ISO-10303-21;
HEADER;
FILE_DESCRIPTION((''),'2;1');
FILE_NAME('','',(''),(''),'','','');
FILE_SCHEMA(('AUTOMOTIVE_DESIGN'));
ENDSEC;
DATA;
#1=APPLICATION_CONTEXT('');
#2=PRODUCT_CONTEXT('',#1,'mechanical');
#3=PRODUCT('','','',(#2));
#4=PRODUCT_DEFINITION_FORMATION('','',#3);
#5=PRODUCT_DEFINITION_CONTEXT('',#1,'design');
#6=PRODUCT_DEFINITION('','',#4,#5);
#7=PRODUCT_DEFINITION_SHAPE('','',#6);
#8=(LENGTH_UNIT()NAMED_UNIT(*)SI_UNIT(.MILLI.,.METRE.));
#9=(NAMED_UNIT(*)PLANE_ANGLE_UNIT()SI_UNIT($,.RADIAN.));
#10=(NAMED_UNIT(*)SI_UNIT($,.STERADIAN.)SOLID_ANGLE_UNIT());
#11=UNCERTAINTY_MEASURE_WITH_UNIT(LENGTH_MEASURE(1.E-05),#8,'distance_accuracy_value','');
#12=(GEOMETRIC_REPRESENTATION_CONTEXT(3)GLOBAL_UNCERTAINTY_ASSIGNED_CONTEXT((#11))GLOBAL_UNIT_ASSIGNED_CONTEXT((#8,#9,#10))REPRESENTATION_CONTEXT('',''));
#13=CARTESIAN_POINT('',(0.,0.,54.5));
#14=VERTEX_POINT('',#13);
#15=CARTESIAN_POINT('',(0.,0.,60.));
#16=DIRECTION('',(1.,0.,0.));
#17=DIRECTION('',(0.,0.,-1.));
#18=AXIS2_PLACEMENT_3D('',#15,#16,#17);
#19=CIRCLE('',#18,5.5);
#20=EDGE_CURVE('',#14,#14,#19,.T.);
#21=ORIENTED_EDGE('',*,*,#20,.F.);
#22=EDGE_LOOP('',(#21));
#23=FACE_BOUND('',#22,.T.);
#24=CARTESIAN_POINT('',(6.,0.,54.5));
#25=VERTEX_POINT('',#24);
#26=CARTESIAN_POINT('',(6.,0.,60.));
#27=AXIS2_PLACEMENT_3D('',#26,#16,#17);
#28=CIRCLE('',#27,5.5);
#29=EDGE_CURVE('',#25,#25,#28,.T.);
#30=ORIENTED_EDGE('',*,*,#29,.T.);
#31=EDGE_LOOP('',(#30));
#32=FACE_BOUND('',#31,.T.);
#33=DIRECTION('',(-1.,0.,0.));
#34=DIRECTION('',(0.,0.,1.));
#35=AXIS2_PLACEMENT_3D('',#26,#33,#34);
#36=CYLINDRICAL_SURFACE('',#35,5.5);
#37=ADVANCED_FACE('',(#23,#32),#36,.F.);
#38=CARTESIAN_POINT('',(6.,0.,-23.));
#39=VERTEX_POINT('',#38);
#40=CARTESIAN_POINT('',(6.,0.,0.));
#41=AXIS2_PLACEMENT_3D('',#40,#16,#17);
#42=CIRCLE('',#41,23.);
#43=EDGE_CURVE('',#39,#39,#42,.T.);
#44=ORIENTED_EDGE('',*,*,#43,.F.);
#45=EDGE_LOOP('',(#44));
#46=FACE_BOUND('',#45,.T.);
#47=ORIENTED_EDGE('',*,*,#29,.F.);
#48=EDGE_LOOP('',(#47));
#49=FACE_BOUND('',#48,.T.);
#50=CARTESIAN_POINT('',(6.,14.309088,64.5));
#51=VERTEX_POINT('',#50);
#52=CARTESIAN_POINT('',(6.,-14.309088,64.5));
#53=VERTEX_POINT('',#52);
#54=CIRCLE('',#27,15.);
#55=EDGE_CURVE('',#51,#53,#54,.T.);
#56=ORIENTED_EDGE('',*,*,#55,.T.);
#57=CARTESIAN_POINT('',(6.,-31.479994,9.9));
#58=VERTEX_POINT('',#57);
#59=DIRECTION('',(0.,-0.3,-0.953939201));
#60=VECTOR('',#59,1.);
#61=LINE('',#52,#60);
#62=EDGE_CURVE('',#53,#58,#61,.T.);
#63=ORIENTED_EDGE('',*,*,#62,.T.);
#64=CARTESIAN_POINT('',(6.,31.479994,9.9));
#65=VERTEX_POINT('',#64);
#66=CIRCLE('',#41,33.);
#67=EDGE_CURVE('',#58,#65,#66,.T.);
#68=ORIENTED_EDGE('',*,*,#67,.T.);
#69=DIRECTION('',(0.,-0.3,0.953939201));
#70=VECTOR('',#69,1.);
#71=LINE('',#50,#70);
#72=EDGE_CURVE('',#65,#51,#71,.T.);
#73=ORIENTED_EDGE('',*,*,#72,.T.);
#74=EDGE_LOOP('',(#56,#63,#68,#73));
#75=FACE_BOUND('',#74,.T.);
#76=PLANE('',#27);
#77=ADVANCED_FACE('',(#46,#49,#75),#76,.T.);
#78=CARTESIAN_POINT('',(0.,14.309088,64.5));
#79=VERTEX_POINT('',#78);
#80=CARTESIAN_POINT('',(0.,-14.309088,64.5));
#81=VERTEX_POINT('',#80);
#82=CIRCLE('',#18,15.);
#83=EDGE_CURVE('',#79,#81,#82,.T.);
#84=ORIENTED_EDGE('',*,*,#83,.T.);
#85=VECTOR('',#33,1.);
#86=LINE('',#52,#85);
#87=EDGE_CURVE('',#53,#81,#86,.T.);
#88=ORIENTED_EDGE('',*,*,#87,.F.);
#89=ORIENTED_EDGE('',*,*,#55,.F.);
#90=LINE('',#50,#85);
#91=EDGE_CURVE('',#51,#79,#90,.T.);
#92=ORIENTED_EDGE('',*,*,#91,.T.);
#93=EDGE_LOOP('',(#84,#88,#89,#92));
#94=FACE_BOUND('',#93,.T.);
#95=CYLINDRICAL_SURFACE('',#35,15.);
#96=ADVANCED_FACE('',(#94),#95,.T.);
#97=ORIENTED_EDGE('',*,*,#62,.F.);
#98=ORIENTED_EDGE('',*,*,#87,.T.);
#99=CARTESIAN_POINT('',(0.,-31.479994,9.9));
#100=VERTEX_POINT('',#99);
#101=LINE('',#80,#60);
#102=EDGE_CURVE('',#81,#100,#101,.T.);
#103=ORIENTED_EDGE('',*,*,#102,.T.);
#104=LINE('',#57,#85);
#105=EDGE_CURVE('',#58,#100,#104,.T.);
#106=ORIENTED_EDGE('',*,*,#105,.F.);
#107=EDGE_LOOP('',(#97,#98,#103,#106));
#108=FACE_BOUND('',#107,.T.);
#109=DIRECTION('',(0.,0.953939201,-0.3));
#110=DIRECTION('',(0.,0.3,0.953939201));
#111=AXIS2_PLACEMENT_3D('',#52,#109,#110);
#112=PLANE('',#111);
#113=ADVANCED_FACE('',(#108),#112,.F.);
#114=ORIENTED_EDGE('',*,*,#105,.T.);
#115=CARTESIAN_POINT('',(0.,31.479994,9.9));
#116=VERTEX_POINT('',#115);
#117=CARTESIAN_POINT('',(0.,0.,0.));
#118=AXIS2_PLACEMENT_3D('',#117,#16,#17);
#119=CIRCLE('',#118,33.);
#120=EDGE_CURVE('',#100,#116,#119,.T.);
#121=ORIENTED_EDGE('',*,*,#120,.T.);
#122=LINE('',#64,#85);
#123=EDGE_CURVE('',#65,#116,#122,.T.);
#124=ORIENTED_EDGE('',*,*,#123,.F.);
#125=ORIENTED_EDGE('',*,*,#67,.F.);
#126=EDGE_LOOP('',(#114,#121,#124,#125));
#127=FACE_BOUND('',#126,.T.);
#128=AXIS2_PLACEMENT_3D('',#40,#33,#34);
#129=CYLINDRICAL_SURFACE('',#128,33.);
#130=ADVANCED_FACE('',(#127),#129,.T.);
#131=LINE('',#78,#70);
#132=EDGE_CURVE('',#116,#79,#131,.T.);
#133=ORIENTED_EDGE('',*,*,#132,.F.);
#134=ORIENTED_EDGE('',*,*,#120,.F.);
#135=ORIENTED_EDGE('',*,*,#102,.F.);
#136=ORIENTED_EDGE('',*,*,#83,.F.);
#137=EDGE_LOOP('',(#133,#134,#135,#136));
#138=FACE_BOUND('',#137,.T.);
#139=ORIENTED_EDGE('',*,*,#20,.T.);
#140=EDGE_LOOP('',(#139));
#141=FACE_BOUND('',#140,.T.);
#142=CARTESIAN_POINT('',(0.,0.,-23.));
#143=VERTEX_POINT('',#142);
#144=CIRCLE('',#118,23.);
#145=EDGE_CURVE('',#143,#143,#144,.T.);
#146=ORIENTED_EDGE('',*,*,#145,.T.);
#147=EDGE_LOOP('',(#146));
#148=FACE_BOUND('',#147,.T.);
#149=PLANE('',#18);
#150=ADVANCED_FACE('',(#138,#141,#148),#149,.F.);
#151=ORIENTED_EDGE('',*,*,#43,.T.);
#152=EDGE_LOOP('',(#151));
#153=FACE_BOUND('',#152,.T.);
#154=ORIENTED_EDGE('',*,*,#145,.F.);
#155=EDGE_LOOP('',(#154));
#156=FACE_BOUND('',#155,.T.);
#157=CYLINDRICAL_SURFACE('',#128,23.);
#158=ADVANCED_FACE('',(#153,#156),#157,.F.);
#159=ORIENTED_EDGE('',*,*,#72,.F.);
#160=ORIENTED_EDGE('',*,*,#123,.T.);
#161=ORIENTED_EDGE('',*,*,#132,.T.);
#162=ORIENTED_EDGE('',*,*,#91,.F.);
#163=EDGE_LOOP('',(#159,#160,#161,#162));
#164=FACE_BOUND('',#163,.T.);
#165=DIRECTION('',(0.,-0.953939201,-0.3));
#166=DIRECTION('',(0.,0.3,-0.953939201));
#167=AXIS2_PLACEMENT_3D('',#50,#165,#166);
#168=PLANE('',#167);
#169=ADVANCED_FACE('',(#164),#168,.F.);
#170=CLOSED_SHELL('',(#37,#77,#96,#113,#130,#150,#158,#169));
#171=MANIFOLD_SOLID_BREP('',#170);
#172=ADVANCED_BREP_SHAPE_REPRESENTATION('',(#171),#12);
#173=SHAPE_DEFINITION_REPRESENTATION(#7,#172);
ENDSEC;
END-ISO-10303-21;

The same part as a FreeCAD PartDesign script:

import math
import FreeCAD as App
import Part
import Sketcher

V = App.Vector
Q = App.Units.Quantity

doc = App.newDocument("Part")
params = doc.addObject("Spreadsheet::Sheet", "Params")
for row, (alias, value) in enumerate([
    ("sketch1_diameter", "46 mm"),
    ("sketch1_diameter2", "11 mm"),
    ("sketch1_radius", "15 mm"),
    ("sketch1_radius2", "33 mm"),
    ("pad1_length", "6 mm"),
], start=1):
    params.set(f"A{row}", alias)
    params.set(f"B{row}", "=" + value)
    params.setAlias(f"B{row}", alias)

body = doc.addObject("PartDesign::Body", "Body")

# Sketch on YZ plane
sketch1 = body.newObject("Sketcher::SketchObject", "Sketch")
sketch1.AttachmentSupport = (doc.getObject("YZ_Plane"), [""])
sketch1.MapMode = "FlatFace"
sketch1.addGeometry([
    Part.LineSegment(V(31.479994, 9.9, 0), V(14.309088, 64.5, 0)),  # 0
    Part.ArcOfCircle(Part.Circle(V(0, 60, 0), V(0, 0, 1), 15), math.radians(17.457603), math.radians(162.542397)),  # 1
    Part.LineSegment(V(-14.309088, 64.5, 0), V(-31.479994, 9.9, 0)),  # 2
    Part.ArcOfCircle(Part.Circle(V(0, 0, 0), V(0, 0, 1), 33), math.radians(162.542397), math.radians(377.457603)),  # 3
    Part.Circle(V(0, 0, 0), V(0, 0, 1), 23),  # 4
    Part.Circle(V(0, 60, 0), V(0, 0, 1), 5.5),  # 5
], False)
sketch1.addConstraint([
    Sketcher.Constraint("Tangent", 0, 2, 1, 1),
    Sketcher.Constraint("Tangent", 1, 2, 2, 1),
    Sketcher.Constraint("Tangent", 2, 2, 3, 1),
    Sketcher.Constraint("Tangent", 3, 2, 0, 1),
    Sketcher.Constraint("Coincident", 3, 3, -1, 1),
    Sketcher.Constraint("Coincident", 4, 3, -1, 1),
    Sketcher.Constraint("Coincident", 5, 3, 1, 3),
    Sketcher.Constraint("PointOnObject", 1, 3, -2),
    Sketcher.Constraint("Diameter", 4, Q("46 mm")),
    Sketcher.Constraint("Diameter", 5, Q("11 mm")),
    Sketcher.Constraint("Radius", 1, Q("15 mm")),
    Sketcher.Constraint("Radius", 3, Q("33 mm")),
    Sketcher.Constraint("DistanceY", -1, 1, 1, 3, Q("60 mm")),
])
sketch1.setExpression("Constraints[8]", "Params.sketch1_diameter")
sketch1.setExpression("Constraints[9]", "Params.sketch1_diameter2")
sketch1.setExpression("Constraints[10]", "Params.sketch1_radius")
sketch1.setExpression("Constraints[11]", "Params.sketch1_radius2")
pad1 = body.newObject("PartDesign::Pad", "Pad")
pad1.Profile = sketch1
pad1.setExpression("Length", "Params.pad1_length")

doc.recompute()
